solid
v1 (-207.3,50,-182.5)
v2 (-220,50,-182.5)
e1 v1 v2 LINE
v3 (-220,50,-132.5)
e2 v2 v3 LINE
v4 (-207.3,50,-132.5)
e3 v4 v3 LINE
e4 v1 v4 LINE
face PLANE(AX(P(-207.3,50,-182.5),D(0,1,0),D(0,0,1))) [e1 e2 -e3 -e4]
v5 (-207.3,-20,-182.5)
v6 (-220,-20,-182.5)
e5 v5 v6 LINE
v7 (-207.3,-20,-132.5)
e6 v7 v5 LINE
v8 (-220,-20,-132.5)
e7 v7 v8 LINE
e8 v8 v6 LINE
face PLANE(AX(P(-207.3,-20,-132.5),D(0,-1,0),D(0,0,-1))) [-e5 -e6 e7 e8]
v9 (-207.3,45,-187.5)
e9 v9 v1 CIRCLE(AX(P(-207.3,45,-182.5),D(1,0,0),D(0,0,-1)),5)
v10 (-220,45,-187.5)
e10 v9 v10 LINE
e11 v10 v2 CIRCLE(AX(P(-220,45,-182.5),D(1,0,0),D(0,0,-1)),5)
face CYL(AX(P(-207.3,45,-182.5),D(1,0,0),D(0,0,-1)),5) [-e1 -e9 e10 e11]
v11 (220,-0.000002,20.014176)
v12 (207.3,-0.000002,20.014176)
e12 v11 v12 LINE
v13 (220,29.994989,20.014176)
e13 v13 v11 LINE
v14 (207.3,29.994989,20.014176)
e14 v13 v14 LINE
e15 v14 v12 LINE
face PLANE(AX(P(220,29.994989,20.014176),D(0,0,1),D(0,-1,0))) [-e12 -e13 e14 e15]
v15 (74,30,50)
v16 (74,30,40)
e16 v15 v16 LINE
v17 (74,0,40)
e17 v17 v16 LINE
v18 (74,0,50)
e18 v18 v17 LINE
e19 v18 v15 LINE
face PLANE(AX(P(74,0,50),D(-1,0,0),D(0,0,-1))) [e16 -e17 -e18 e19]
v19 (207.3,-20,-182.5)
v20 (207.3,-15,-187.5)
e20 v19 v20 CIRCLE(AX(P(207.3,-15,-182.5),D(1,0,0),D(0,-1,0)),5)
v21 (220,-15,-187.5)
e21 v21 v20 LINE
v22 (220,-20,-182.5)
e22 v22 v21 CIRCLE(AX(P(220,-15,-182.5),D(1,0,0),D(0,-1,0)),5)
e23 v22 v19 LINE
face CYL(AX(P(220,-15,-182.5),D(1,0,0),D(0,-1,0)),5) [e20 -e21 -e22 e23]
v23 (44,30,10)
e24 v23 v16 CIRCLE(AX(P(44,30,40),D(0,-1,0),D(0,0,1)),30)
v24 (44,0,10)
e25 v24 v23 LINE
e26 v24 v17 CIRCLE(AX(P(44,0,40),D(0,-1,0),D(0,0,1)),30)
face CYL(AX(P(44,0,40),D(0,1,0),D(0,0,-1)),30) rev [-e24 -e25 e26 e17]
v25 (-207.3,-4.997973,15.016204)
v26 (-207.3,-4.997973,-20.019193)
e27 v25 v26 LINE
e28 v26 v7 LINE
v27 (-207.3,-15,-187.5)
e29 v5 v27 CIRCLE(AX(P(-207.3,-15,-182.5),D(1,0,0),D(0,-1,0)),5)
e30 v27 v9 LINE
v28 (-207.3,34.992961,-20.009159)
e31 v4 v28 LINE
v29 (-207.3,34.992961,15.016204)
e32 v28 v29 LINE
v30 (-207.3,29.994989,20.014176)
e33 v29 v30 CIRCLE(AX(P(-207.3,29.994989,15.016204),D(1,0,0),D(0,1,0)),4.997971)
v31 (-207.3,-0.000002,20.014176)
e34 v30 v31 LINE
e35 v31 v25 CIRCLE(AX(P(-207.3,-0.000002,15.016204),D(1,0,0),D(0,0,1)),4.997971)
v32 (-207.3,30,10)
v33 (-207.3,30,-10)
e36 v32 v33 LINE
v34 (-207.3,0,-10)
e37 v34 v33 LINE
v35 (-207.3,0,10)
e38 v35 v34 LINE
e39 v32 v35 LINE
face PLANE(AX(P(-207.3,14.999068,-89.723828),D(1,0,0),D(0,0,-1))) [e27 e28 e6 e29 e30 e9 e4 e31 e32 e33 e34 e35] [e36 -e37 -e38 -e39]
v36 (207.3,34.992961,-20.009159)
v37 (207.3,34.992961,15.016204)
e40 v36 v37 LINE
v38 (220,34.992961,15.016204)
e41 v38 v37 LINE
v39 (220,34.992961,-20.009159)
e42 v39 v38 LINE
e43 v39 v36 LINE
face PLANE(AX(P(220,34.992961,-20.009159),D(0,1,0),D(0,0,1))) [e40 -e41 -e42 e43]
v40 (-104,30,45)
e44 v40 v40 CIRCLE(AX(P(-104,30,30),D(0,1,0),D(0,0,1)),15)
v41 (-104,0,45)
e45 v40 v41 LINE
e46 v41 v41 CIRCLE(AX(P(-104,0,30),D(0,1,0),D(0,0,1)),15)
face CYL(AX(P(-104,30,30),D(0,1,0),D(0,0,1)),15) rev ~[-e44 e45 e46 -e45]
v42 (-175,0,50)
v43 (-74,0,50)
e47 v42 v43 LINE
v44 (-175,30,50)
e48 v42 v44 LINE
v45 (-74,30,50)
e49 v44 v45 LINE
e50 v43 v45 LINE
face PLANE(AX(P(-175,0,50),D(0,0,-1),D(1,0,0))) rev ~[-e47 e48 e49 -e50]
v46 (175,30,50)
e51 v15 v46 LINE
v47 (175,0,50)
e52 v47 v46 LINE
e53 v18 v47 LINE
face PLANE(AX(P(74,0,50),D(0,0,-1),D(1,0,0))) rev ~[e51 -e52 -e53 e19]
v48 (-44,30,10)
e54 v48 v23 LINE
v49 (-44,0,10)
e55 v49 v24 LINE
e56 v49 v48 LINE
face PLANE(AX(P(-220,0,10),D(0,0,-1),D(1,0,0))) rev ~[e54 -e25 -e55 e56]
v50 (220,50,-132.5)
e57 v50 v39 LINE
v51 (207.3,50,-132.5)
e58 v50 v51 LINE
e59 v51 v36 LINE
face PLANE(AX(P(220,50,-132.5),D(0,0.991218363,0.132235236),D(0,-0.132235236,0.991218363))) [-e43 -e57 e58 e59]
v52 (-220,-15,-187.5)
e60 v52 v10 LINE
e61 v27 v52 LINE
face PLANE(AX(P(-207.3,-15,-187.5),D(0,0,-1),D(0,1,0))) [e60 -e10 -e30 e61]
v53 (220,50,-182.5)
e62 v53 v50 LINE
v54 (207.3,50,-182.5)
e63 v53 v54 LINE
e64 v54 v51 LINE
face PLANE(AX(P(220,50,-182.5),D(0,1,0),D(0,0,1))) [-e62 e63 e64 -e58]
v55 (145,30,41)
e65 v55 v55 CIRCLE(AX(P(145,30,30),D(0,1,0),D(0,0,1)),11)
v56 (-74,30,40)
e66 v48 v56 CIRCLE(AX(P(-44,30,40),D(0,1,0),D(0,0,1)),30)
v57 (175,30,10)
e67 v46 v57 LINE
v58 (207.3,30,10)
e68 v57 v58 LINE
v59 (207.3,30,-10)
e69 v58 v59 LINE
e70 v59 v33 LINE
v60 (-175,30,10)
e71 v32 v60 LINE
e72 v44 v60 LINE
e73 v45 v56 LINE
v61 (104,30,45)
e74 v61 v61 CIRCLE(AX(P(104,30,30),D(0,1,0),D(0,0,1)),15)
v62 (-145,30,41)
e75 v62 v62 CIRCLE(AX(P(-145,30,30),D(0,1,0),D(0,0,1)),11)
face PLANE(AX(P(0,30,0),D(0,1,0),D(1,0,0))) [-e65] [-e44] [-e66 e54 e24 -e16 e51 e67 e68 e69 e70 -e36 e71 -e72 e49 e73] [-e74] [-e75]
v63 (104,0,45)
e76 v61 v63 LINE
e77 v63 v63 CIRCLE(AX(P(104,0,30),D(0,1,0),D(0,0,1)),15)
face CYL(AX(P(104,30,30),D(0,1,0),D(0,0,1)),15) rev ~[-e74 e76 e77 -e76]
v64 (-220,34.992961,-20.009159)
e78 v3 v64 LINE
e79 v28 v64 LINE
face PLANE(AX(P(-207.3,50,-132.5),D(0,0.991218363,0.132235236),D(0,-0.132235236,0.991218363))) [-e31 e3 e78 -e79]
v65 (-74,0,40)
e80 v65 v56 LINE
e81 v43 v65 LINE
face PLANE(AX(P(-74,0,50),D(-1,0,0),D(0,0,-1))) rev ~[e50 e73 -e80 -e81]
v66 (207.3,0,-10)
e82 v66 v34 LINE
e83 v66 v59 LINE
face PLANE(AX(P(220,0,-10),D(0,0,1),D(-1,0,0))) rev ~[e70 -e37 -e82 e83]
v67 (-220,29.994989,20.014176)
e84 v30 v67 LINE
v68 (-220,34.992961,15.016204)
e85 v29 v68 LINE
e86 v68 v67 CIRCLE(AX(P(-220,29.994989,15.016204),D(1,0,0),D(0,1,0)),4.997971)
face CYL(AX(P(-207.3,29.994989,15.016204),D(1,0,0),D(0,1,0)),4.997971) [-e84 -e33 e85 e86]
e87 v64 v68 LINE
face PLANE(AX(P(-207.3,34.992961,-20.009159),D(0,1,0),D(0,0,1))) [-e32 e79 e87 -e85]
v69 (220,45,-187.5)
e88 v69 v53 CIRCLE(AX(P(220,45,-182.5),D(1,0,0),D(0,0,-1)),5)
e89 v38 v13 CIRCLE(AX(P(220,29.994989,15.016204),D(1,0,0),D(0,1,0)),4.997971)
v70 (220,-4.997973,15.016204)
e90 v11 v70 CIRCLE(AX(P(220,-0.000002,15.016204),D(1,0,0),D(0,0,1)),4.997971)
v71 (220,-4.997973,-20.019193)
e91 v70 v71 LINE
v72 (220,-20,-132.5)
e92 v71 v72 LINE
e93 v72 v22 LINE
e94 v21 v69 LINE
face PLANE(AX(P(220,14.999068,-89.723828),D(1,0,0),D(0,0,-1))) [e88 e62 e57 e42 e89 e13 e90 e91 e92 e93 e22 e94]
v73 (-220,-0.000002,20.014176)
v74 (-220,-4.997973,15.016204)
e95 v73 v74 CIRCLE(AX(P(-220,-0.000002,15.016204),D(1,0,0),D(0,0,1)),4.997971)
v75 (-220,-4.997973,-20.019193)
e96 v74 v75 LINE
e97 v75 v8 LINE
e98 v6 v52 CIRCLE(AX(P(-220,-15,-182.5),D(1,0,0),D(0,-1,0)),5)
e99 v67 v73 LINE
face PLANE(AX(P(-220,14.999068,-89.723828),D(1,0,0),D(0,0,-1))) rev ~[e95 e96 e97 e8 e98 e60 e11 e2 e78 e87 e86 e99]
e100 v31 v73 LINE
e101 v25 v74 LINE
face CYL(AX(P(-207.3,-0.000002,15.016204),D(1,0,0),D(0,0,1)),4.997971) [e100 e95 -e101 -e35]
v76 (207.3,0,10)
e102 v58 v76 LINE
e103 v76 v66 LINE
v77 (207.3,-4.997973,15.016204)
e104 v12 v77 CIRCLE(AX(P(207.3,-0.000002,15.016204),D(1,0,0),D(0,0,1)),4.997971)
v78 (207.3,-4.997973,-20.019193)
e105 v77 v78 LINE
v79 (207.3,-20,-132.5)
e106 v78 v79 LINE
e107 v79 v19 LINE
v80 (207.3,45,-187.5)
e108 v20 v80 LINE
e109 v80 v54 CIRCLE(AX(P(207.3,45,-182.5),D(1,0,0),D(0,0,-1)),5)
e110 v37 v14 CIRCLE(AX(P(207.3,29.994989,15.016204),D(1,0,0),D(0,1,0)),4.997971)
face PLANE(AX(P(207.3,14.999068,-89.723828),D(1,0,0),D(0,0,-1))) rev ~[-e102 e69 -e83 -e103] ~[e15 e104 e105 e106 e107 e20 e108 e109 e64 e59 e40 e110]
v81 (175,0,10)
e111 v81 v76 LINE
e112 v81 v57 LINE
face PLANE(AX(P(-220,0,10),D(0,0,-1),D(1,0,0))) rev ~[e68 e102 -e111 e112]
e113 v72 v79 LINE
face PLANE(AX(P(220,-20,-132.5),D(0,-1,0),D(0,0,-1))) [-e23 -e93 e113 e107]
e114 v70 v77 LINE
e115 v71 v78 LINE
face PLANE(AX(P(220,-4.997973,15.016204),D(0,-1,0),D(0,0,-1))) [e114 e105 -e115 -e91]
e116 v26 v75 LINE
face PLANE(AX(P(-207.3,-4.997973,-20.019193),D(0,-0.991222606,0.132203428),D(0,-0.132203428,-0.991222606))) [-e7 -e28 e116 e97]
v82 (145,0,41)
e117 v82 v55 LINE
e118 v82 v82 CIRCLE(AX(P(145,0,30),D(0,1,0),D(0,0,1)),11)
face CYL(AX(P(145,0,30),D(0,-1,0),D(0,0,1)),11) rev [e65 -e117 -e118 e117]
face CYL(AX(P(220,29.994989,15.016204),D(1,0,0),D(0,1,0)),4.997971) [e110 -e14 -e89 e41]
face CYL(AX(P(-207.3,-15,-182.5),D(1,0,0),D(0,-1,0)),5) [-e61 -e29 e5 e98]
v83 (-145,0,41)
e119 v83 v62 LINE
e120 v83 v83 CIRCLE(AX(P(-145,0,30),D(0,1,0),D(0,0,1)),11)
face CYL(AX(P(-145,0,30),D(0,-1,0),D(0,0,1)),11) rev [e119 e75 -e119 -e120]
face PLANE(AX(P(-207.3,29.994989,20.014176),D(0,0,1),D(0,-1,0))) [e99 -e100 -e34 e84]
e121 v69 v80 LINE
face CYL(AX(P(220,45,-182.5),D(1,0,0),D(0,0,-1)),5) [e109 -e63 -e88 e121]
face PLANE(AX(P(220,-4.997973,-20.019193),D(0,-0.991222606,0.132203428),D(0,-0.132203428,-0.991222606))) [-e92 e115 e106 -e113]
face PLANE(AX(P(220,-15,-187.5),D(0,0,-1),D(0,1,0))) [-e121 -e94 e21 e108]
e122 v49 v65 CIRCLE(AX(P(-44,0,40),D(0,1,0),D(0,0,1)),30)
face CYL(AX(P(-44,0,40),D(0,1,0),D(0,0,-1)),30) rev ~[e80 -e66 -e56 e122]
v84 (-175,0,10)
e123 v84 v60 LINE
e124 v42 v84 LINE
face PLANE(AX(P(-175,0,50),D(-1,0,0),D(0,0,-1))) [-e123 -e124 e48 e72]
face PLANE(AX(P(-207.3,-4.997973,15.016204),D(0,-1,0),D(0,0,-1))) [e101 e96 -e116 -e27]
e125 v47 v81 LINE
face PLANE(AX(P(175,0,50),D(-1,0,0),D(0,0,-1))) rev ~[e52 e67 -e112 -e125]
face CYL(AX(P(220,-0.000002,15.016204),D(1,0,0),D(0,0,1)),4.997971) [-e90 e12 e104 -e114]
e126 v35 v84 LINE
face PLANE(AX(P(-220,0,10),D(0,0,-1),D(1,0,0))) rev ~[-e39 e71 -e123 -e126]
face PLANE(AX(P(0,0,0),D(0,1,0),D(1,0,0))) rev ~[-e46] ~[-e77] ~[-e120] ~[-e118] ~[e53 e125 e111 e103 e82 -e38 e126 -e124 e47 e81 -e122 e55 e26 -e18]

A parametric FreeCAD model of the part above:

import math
import FreeCAD as App
import Part
import Sketcher
from FreeCAD import Vector
Q = App.Units.Quantity


def edges_at(feature, points):
    """Names of the edges that pass closest to the given points."""
    edges = feature.Shape.Edges
    near = lambda p: min(range(len(edges)), key=lambda i: edges[i].distToShape(Part.Vertex(*p))[0])
    return sorted({f"Edge{near(p) + 1}" for p in points})


def add_polygon(sketch, points):
    """Adds a closed chain of lines whose ends are joined by coincident constraints."""
    first, n = sketch.GeometryCount, len(points)
    for a, b in zip(points, points[1:] + points[:1]):
        sketch.addGeometry(Part.LineSegment(App.Vector(*a, 0), App.Vector(*b, 0)), False)
    for i in range(n):
        sketch.addConstraint(Sketcher.Constraint("Coincident", first + i, 2, first + (i + 1) % n, 1))

doc = App.newDocument("Part")
body = doc.addObject("PartDesign::Body", "Body")

sketch1 = doc.addObject("Sketcher::SketchObject", "Sketch")
body.addObject(sketch1)
sketch1.AttachmentSupport = (doc.XZ_Plane, [""])
sketch1.MapMode = "FlatFace"
add_polygon(sketch1, [(-175, 10), (-175, 50), (-74, 50), (-74, 10), (74, 10), (74, 50), (175, 50), (175, 10), (220, 10), (220, -10), (-220, -10), (-220, 10)])
sketch1.addGeometry(Part.Circle(Vector(-145, 30, 0), Vector(0, 0, 1), 11), False)
sketch1.addGeometry(Part.Circle(Vector(-104, 30, 0), Vector(0, 0, 1), 10), False)
sketch1.addGeometry(Part.Circle(Vector(145, 30, 0), Vector(0, 0, 1), 11), False)
sketch1.addGeometry(Part.Circle(Vector(104, 30, 0), Vector(0, 0, 1), 10), False)
sketch1.addConstraint([
    Sketcher.Constraint("Vertical", 0),
    Sketcher.Constraint("Horizontal", 1),
    Sketcher.Constraint("Vertical", 2),
    Sketcher.Constraint("Horizontal", 3),
    Sketcher.Constraint("Vertical", 4),
    Sketcher.Constraint("Horizontal", 5),
    Sketcher.Constraint("Vertical", 6),
    Sketcher.Constraint("Horizontal", 7),
    Sketcher.Constraint("Vertical", 8),
    Sketcher.Constraint("Horizontal", 9),
    Sketcher.Constraint("Vertical", 10),
    Sketcher.Constraint("Horizontal", 11),
    Sketcher.Constraint("Equal", 12, 14),
    Sketcher.Constraint("Equal", 13, 15),
    Sketcher.Constraint("Symmetric", 7, 2, 9, 2, -1, 1),
    Sketcher.Constraint("Symmetric", 12, 3, 14, 3, -2),
    Sketcher.Constraint("Symmetric", 13, 3, 15, 3, -2),
    Sketcher.Constraint("Symmetric", 1, 2, 4, 2, -2),
    Sketcher.Constraint("Symmetric", 6, 2, 11, 2, -2),
    Sketcher.Constraint("Horizontal", 12, 3, 13, 3),
    Sketcher.Constraint("Horizontal", 3, 2, 6, 2),
    Sketcher.Constraint("Diameter", 12, Q("22 mm")),
    Sketcher.Constraint("Diameter", 13, Q("20 mm")),
    Sketcher.Constraint("DistanceX", 1, 1, 1, 2, Q("101 mm")),
    Sketcher.Constraint("DistanceX", 3, 1, 3, 2, Q("148 mm")),
    Sketcher.Constraint("DistanceX", 7, 1, 7, 2, Q("45 mm")),
    Sketcher.Constraint("DistanceY", 0, 1, 0, 2, Q("40 mm")),
    Sketcher.Constraint("DistanceY", 8, 2, 8, 1, Q("20 mm")),
    Sketcher.Constraint("DistanceX", 12, 3, -1, 1, Q("145 mm")),
    Sketcher.Constraint("DistanceY", -1, 1, 12, 3, Q("30 mm")),
    Sketcher.Constraint("DistanceX", 13, 3, -1, 1, Q("104 mm")),
])
pad1 = doc.addObject("PartDesign::Pad", "Pad")
body.addObject(pad1)
pad1.Profile = sketch1
pad1.Length = 30
pad1.Reversed = True
doc.recompute()

fillet = doc.addObject("PartDesign::Fillet", "Fillet")
body.addObject(fillet)
fillet.Base = (pad1, edges_at(pad1, [(-74, 15, 10)]))
fillet.Radius = 30
doc.recompute()

fillet2 = doc.addObject("PartDesign::Fillet", "Fillet001")
body.addObject(fillet2)
fillet2.Base = (fillet, edges_at(fillet, [(74, 15, 10)]))
fillet2.Radius = 30

sketch2 = doc.addObject("Sketcher::SketchObject", "Sketch001")
body.addObject(sketch2)
sketch2.AttachmentSupport = (doc.YZ_Plane, [""])
sketch2.MapMode = "FlatFace"
sketch2.AttachmentOffset = App.Placement(Vector(0, 0, 220), App.Rotation())
sketch2.addGeometry([
    Part.LineSegment(Vector(35, -20, 0), Vector(35, 15, 0)),
    Part.ArcOfCircle(Part.Circle(Vector(30, 15, 0), Vector(0, 0, 1), 5), math.radians(0), math.radians(90)),
    Part.LineSegment(Vector(30, 20, 0), Vector(0, 20, 0)),
    Part.ArcOfCircle(Part.Circle(Vector(0, 15, 0), Vector(0, 0, 1), 5), math.radians(90), math.radians(180)),
    Part.LineSegment(Vector(-5, 15, 0), Vector(-5, -20, 0)),
    Part.LineSegment(Vector(-5, -20, 0), Vector(-20, -132.5, 0)),
    Part.LineSegment(Vector(-20, -132.5, 0), Vector(-20, -182.5, 0)),
    Part.ArcOfCircle(Part.Circle(Vector(-15, -182.5, 0), Vector(0, 0, 1), 5), math.radians(180), math.radians(270)),
    Part.LineSegment(Vector(-15, -187.5, 0), Vector(45, -187.5, 0)),
    Part.ArcOfCircle(Part.Circle(Vector(45, -182.5, 0), Vector(0, 0, 1), 5), math.radians(-90), math.radians(0)),
    Part.LineSegment(Vector(50, -182.5, 0), Vector(50, -132.5, 0)),
    Part.LineSegment(Vector(50, -132.5, 0), Vector(35, -20, 0)),
], False)
sketch2.addConstraint([
    Sketcher.Constraint("Tangent", 0, 2, 1, 1),
    Sketcher.Constraint("Tangent", 1, 2, 2, 1),
    Sketcher.Constraint("Tangent", 2, 2, 3, 1),
    Sketcher.Constraint("Tangent", 3, 2, 4, 1),
    Sketcher.Constraint("Coincident", 4, 2, 5, 1),
    Sketcher.Constraint("Coincident", 5, 2, 6, 1),
    Sketcher.Constraint("Tangent", 6, 2, 7, 1),
    Sketcher.Constraint("Tangent", 7, 2, 8, 1),
    Sketcher.Constraint("Tangent", 8, 2, 9, 1),
    Sketcher.Constraint("Tangent", 9, 2, 10, 1),
    Sketcher.Constraint("Coincident", 10, 2, 11, 1),
    Sketcher.Constraint("Coincident", 11, 2, 0, 1),
    Sketcher.Constraint("Vertical", 0),
    Sketcher.Constraint("Horizontal", 2),
    Sketcher.Constraint("Vertical", 4),
    Sketcher.Constraint("Vertical", 6),
    Sketcher.Constraint("Horizontal", 8),
    Sketcher.Constraint("Vertical", 10),
    Sketcher.Constraint("Equal", 1, 3),
    Sketcher.Constraint("Equal", 7, 9),
    Sketcher.Constraint("PointOnObject", 3, 3, -2),
    Sketcher.Constraint("Horizontal", 5, 2, 10, 2),
    Sketcher.Constraint("Radius", 7, Q("5 mm")),
    Sketcher.Constraint("DistanceX", 8, 1, 8, 2, Q("60 mm")),
    Sketcher.Constraint("DistanceY", 6, 2, 6, 1, Q("50 mm")),
    Sketcher.Constraint("DistanceX", 7, 3, -1, 1, Q("15 mm")),
    Sketcher.Constraint("DistanceY", 7, 3, -1, 1, Q("182.5 mm")),
    Sketcher.Constraint("Radius", 1, Q("4.997971 mm")),
    Sketcher.Constraint("DistanceX", 2, 2, 2, 1, Q("29.994991 mm")),
    Sketcher.Constraint("DistanceY", 0, 1, 0, 2, Q("35.025363 mm")),
    Sketcher.Constraint("DistanceY", 4, 2, 4, 1, Q("35.035398 mm")),
    Sketcher.Constraint("DistanceY", 11, 2, -1, 1, Q("20.009159 mm")),
])
pad2 = doc.addObject("PartDesign::Pad", "Pad001")
body.addObject(pad2)
pad2.Profile = sketch2
pad2.Length = 12.7
pad2.Reversed = True
doc.recompute()

linearpattern = doc.addObject("PartDesign::LinearPattern", "LinearPattern")
body.addObject(linearpattern)
linearpattern.Originals = [pad2]
linearpattern.Direction = (doc.X_Axis, [""])
linearpattern.Mode = "offset"
linearpattern.Offset = 427.3
linearpattern.Occurrences = 2
linearpattern.Reversed = True
body.Tip = linearpattern

sketch3 = doc.addObject("Sketcher::SketchObject", "Sketch002")
body.addObject(sketch3)
sketch3.AttachmentSupport = (doc.XZ_Plane, [""])
sketch3.MapMode = "FlatFace"
sketch3.AttachmentOffset = App.Placement(Vector(0, 0, -30), App.Rotation())
sketch3.addGeometry(Part.Circle(Vector(-104, 30, 0), Vector(0, 0, 1), 15), False)
sketch3.addConstraint([
    Sketcher.Constraint("Diameter", 0, Q("30 mm")),
    Sketcher.Constraint("DistanceX", 0, 3, -1, 1, Q("104 mm")),
    Sketcher.Constraint("DistanceY", -1, 1, 0, 3, Q("30 mm")),
])
pocket1 = doc.addObject("PartDesign::Pocket", "Pocket")
body.addObject(pocket1)
pocket1.Profile = sketch3
pocket1.Length = 30
pocket1.Reversed = True

sketch4 = doc.addObject("Sketcher::SketchObject", "Sketch003")
body.addObject(sketch4)
sketch4.AttachmentSupport = (doc.XZ_Plane, [""])
sketch4.MapMode = "FlatFace"
sketch4.AttachmentOffset = App.Placement(Vector(0, 0, -30), App.Rotation())
sketch4.addGeometry(Part.Circle(Vector(104, 30, 0), Vector(0, 0, 1), 15), False)
sketch4.addConstraint([
    Sketcher.Constraint("Diameter", 0, Q("30 mm")),
    Sketcher.Constraint("DistanceX", -1, 1, 0, 3, Q("104 mm")),
    Sketcher.Constraint("DistanceY", -1, 1, 0, 3, Q("30 mm")),
])
pocket2 = doc.addObject("PartDesign::Pocket", "Pocket001")
body.addObject(pocket2)
pocket2.Profile = sketch4
pocket2.Length = 30
pocket2.Reversed = True

doc.recompute()
